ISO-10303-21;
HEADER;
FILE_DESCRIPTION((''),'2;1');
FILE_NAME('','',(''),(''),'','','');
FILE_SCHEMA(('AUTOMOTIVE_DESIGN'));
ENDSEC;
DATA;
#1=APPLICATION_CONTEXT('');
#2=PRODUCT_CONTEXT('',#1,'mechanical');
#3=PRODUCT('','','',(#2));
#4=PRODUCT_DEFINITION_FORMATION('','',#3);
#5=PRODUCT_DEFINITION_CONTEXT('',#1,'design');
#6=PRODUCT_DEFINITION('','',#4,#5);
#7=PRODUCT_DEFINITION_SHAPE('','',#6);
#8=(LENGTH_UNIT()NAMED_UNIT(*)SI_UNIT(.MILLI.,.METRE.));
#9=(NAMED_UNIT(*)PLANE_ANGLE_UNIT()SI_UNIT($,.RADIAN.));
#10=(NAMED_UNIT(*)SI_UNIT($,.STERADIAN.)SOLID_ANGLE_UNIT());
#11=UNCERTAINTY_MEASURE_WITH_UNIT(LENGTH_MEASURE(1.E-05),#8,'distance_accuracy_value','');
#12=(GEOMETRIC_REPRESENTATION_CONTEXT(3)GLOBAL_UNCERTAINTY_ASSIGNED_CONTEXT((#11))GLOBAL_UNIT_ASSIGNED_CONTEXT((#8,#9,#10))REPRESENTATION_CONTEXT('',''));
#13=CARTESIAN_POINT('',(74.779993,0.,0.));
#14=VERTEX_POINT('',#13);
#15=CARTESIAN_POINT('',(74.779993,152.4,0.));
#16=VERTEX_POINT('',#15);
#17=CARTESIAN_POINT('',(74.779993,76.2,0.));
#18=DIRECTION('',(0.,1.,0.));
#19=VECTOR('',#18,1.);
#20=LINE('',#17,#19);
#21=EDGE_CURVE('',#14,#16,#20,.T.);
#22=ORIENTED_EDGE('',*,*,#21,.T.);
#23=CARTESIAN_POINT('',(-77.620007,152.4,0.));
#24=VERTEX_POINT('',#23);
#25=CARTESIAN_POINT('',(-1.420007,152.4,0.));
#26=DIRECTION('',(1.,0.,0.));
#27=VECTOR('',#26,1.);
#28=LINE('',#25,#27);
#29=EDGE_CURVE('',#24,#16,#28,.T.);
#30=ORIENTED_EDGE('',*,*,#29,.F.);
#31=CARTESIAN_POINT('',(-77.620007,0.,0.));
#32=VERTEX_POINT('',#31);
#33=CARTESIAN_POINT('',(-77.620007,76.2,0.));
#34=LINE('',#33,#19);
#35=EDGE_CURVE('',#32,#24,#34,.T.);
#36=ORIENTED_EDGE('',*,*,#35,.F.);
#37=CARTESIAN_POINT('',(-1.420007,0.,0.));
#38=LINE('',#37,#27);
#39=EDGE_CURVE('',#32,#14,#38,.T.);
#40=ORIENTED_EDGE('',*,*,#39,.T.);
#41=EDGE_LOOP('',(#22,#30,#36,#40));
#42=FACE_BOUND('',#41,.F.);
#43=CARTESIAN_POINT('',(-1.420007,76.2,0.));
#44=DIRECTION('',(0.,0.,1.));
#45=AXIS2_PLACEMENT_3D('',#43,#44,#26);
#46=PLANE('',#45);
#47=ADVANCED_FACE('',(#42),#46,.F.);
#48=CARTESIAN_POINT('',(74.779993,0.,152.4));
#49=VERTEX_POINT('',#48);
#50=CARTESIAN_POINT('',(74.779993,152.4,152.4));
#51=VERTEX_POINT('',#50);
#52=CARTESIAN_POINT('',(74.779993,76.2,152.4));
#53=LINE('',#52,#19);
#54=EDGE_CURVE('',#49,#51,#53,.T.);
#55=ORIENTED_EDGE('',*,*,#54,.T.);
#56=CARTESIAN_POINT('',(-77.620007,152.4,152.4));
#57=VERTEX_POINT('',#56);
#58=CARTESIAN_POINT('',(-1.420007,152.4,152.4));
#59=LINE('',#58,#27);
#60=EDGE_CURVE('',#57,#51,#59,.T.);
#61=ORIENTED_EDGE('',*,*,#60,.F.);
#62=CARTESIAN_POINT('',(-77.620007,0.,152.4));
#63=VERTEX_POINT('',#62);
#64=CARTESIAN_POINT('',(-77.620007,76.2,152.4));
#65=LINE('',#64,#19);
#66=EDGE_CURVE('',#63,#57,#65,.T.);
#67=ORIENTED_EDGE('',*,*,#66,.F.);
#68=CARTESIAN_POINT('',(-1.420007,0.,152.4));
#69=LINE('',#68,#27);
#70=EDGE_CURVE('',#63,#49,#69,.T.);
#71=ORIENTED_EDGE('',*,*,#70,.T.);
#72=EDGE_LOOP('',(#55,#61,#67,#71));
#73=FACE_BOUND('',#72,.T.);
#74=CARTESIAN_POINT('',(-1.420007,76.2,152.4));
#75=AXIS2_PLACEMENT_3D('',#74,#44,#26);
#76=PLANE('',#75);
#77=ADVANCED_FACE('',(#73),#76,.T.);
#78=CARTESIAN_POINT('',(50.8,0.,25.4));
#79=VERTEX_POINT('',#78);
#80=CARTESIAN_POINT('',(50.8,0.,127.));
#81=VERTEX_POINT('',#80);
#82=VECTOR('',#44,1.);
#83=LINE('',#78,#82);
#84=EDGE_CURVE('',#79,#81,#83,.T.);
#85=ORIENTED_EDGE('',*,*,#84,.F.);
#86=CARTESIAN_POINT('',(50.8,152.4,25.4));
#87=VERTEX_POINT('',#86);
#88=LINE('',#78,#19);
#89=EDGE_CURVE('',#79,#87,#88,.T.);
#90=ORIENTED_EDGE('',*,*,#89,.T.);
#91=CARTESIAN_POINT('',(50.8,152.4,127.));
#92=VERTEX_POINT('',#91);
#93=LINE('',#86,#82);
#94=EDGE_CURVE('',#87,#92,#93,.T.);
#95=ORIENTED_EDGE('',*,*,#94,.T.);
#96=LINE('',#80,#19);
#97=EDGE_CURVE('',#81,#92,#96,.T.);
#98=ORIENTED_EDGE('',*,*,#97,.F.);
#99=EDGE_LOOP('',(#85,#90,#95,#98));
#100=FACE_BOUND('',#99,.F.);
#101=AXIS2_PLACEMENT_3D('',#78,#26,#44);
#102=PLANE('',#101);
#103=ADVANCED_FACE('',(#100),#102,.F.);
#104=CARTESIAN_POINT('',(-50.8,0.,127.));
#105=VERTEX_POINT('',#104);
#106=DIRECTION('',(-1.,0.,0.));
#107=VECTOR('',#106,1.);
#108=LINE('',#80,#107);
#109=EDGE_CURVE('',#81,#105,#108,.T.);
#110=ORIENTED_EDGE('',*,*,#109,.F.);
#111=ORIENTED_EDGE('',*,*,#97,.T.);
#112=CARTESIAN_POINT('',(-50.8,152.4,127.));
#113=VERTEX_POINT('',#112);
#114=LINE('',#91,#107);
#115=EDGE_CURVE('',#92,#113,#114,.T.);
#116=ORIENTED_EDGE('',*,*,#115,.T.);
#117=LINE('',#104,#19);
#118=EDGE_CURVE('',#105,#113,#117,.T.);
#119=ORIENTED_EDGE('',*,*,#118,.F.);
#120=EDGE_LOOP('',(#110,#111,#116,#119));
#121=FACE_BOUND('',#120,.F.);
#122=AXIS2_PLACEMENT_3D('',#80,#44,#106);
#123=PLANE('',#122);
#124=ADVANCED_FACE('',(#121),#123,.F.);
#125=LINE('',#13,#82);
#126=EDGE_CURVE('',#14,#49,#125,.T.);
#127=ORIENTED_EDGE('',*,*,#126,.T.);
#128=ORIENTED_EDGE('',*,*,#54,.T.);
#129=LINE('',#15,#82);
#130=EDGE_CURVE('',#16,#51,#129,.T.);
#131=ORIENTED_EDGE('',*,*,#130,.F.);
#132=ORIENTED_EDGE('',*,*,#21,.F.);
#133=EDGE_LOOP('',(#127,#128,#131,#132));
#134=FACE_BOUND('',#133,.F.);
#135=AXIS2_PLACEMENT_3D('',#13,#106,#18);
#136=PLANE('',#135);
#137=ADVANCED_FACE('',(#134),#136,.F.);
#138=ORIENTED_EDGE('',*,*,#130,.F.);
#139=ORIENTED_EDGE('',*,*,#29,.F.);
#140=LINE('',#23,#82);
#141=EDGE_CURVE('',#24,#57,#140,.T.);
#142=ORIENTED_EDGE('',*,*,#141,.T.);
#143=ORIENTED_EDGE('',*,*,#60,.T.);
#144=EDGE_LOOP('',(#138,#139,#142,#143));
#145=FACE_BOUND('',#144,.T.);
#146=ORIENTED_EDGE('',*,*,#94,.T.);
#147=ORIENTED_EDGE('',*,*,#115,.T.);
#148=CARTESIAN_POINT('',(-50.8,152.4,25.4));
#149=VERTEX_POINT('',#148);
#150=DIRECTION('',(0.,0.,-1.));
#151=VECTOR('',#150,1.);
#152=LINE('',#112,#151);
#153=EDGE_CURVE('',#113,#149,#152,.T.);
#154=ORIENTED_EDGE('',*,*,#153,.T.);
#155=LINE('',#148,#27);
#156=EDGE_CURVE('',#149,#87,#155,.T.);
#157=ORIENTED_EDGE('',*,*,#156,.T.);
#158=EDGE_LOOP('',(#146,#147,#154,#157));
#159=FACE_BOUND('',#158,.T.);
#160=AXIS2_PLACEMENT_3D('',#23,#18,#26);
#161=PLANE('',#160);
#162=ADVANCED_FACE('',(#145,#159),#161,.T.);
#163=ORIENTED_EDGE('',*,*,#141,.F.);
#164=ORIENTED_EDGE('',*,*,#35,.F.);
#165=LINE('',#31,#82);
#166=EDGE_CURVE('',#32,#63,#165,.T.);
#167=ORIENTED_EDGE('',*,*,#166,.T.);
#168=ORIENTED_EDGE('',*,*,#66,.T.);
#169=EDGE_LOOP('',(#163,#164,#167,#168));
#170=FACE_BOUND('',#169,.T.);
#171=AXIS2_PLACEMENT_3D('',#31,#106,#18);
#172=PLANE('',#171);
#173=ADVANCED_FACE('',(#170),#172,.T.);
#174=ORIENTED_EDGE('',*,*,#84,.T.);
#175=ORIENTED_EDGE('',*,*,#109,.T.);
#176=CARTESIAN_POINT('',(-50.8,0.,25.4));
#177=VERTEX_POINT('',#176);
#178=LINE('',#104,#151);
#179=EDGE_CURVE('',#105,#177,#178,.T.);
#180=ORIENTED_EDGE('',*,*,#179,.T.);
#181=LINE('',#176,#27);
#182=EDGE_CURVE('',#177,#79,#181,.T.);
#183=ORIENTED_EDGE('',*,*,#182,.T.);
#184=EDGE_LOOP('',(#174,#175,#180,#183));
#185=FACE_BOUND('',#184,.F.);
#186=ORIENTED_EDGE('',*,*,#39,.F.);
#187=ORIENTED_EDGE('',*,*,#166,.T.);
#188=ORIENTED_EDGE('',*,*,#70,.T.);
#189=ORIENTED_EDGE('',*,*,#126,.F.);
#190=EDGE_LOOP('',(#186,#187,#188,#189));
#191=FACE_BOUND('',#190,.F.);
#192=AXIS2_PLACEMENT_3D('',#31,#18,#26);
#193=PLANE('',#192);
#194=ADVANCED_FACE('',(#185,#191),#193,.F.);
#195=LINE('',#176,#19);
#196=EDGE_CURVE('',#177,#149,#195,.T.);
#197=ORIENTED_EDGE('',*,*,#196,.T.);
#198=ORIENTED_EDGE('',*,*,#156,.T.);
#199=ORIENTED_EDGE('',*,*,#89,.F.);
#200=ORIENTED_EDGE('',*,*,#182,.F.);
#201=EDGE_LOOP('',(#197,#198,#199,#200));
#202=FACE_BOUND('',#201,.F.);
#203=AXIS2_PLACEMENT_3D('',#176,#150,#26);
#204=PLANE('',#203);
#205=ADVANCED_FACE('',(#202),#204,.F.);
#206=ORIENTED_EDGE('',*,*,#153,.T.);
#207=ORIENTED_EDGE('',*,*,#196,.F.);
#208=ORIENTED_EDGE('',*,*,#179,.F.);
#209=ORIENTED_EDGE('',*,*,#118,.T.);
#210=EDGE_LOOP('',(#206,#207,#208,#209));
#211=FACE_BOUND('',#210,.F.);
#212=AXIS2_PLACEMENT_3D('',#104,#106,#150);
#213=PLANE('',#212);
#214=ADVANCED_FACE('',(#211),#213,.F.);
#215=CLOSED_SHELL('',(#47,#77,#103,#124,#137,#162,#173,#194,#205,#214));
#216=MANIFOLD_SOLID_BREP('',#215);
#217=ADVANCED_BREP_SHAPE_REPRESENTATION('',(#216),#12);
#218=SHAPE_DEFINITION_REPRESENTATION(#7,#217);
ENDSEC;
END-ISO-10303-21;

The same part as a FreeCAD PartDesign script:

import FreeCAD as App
import Part
import Sketcher
Q = App.Units.Quantity


def add_polygon(sketch, points):
    """Adds a closed chain of lines whose ends are joined by coincident constraints."""
    first, n = sketch.GeometryCount, len(points)
    for a, b in zip(points, points[1:] + points[:1]):
        sketch.addGeometry(Part.LineSegment(App.Vector(*a, 0), App.Vector(*b, 0)), False)
    for i in range(n):
        sketch.addConstraint(Sketcher.Constraint("Coincident", first + i, 2, first + (i + 1) % n, 1))

doc = App.newDocument("Part")
params = doc.addObject("Spreadsheet::Sheet", "Params")
for row, (alias, value) in enumerate([
    ("sketch1_width", "6 in"),
    ("pad1_length", "6 in"),
    ("sketch2_width", "4 in"),
    ("pocket1_length", "6 in"),
], start=1):
    params.set(f"A{row}", alias)
    params.set(f"B{row}", "=" + value)
    params.setAlias(f"B{row}", alias)

body = doc.addObject("PartDesign::Body", "Body")

# Sketch on XY plane
sketch1 = doc.addObject("Sketcher::SketchObject", "Sketch")
body.addObject(sketch1)
sketch1.AttachmentSupport = (doc.XY_Plane, [""])
sketch1.MapMode = "FlatFace"
add_polygon(sketch1, [(-77.620007, 152.4), (-77.620007, 0), (74.779993, 0), (74.779993, 152.4)])  # lines 0-3
sketch1.addConstraint(Sketcher.Constraint("Vertical", 0))
sketch1.addConstraint(Sketcher.Constraint("Horizontal", 1))
sketch1.addConstraint(Sketcher.Constraint("Vertical", 2))
sketch1.addConstraint(Sketcher.Constraint("Horizontal", 3))
sketch1.addConstraint(Sketcher.Constraint("PointOnObject", 0, 2, -1))
sketch1.addConstraint(Sketcher.Constraint("Equal", 3, 0))
sketch1.addConstraint(Sketcher.Constraint("DistanceX", 1, 1, 1, 2, Q("6 in")))
sketch1.addConstraint(Sketcher.Constraint("DistanceX", 0, 2, -1, 1, 77.620007))
sketch1.setExpression("Constraints[10]", "Params.sketch1_width")
pad1 = doc.addObject("PartDesign::Pad", "Pad")
body.addObject(pad1)
pad1.Profile = sketch1
pad1.setExpression("Length", "Params.pad1_length")

# Sketch on XZ plane
sketch2 = doc.addObject("Sketcher::SketchObject", "Sketch001")
body.addObject(sketch2)
sketch2.AttachmentSupport = (doc.XZ_Plane, [""])
sketch2.MapMode = "FlatFace"
add_polygon(sketch2, [(-50.8, 127), (-50.8, 25.4), (50.8, 25.4), (50.8, 127)])  # lines 0-3
sketch2.addConstraint(Sketcher.Constraint("Vertical", 0))
sketch2.addConstraint(Sketcher.Constraint("Horizontal", 1))
sketch2.addConstraint(Sketcher.Constraint("Vertical", 2))
sketch2.addConstraint(Sketcher.Constraint("Horizontal", 3))
sketch2.addConstraint(Sketcher.Constraint("Equal", 3, 0))
sketch2.addConstraint(Sketcher.Constraint("DistanceX", 1, 1, 1, 2, Q("4 in")))
sketch2.addConstraint(Sketcher.Constraint("DistanceX", 0, 2, -1, 1, Q("2 in")))
sketch2.addConstraint(Sketcher.Constraint("DistanceY", -1, 1, 0, 2, Q("1 in")))
sketch2.setExpression("Constraints[9]", "Params.sketch2_width")
pocket1 = doc.addObject("PartDesign::Pocket", "Pocket")
body.addObject(pocket1)
pocket1.Profile = sketch2
pocket1.setExpression("Length", "Params.pocket1_length")

doc.recompute()
